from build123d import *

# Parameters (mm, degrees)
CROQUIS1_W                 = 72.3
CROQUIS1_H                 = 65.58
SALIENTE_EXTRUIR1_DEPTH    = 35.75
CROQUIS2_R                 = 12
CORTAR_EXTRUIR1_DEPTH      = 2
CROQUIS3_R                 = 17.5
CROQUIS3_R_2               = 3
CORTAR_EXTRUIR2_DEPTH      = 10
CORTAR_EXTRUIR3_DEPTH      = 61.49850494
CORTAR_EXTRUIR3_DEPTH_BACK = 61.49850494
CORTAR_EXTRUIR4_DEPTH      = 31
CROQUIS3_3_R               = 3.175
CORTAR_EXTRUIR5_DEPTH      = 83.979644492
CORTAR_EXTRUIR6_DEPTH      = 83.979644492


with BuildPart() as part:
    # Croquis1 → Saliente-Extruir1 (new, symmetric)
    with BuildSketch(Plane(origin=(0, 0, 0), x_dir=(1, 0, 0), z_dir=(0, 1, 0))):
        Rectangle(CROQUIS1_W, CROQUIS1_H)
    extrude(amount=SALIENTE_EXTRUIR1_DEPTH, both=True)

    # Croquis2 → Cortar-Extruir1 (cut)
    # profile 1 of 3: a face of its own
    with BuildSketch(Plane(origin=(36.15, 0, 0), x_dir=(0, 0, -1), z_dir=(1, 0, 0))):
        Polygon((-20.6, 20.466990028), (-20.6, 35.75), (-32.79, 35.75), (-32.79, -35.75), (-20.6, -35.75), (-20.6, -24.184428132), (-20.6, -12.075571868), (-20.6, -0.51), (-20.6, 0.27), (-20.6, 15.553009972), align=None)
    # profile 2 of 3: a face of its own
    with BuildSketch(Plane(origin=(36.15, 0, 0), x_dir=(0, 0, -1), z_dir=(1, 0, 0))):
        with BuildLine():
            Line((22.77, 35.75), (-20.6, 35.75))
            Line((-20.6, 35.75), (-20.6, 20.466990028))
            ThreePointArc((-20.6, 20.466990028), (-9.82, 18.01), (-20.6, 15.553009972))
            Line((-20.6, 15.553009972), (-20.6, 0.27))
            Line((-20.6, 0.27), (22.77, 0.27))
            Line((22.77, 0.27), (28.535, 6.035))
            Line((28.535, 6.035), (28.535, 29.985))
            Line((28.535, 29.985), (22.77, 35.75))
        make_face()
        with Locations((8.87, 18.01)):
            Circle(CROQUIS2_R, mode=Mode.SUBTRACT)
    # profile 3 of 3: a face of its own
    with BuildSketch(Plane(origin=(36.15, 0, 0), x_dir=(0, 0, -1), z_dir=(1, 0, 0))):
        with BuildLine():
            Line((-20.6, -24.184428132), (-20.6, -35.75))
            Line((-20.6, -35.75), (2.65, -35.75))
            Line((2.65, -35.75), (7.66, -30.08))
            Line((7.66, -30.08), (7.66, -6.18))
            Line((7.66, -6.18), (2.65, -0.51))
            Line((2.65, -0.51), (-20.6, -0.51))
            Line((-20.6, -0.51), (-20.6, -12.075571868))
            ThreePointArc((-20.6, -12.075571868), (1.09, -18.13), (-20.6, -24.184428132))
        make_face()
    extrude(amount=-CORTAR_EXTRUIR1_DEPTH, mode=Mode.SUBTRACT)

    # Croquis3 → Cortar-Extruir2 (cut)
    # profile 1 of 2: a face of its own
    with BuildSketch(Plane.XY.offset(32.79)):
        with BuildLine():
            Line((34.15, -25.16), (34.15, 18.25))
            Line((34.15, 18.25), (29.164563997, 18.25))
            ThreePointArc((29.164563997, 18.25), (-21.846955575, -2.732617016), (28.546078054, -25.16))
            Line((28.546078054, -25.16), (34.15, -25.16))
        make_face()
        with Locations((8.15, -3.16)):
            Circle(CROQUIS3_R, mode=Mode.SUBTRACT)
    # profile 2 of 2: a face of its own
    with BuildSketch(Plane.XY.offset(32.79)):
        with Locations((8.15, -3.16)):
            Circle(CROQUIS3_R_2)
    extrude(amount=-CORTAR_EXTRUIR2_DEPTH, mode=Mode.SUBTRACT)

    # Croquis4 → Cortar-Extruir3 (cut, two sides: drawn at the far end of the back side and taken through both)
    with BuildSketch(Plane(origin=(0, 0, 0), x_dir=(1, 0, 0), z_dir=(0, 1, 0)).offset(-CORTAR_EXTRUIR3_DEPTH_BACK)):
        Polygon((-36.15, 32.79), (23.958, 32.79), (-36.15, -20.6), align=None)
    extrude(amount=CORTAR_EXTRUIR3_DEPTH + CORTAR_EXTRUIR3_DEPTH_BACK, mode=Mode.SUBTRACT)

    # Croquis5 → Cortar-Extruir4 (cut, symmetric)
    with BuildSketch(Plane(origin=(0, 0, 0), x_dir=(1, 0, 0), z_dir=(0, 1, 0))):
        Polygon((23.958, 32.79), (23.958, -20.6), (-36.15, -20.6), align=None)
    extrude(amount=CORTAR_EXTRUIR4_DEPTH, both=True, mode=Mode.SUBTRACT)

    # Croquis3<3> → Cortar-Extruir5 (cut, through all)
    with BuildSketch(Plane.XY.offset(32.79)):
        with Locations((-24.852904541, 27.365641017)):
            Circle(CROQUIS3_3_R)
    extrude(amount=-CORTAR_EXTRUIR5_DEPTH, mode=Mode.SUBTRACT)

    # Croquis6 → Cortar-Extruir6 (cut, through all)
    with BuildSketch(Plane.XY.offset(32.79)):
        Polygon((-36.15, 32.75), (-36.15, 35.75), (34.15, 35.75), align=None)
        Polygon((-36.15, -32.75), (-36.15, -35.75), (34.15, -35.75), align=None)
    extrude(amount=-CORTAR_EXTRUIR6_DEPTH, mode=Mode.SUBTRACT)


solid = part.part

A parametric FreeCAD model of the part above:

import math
import FreeCAD as App
import Part
import Sketcher
from FreeCAD import Vector
Q = App.Units.Quantity

doc = App.newDocument("Part")
body = doc.addObject("PartDesign::Body", "Body")

# Sketch on XZ plane
sketch1 = body.newObject("Sketcher::SketchObject", "Sketch")
sketch1.AttachmentSupport = (doc.getObject("XZ_Plane"), [""])
sketch1.MapMode = "FlatFace"
sketch1.addGeometry([
    Part.LineSegment(Vector(-36, -33, 0), Vector(-36, 33, 0)),
    Part.LineSegment(Vector(-36, 33, 0), Vector(36, 33, 0)),
    Part.LineSegment(Vector(36, 33, 0), Vector(36, -33, 0)),
    Part.LineSegment(Vector(36, -33, 0), Vector(-36, -33, 0)),
], False)
sketch1.addConstraint([
    Sketcher.Constraint("Coincident", 0, 2, 1, 1),
    Sketcher.Constraint("Coincident", 1, 2, 2, 1),
    Sketcher.Constraint("Coincident", 2, 2, 3, 1),
    Sketcher.Constraint("Coincident", 3, 2, 0, 1),
    Sketcher.Constraint("Vertical", 0),
    Sketcher.Constraint("Horizontal", 1),
    Sketcher.Constraint("Vertical", 2),
    Sketcher.Constraint("Horizontal", 3),
    Sketcher.Constraint("Symmetric", 0, 2, 2, 2, -1, 1),
    Sketcher.Constraint("DistanceX", 1, 1, 1, 2, Q("72.3 mm")),
    Sketcher.Constraint("DistanceY", 0, 1, 0, 2, Q("65.58 mm")),
])
pad1 = body.newObject("PartDesign::Pad", "Pad")
pad1.Profile = sketch1
pad1.Length = 71.5
pad1.Midplane = True

# Sketch on YZ plane
sketch2 = body.newObject("Sketcher::SketchObject", "Sketch001")
sketch2.AttachmentSupport = (doc.getObject("YZ_Plane"), [""])
sketch2.MapMode = "FlatFace"
sketch2.AttachmentOffset = App.Placement(Vector(0, 0, 36.15), App.Rotation())
sketch2.addGeometry([
    Part.LineSegment(Vector(35.8, 32.8, 0), Vector(-35.8, 32.8, 0)),  # 0
    Part.LineSegment(Vector(-35.8, 32.8, 0), Vector(-35.8, -2.6, 0)),  # 1
    Part.LineSegment(Vector(-35.8, -2.6, 0), Vector(-30.1, -7.7, 0)),  # 2
    Part.LineSegment(Vector(-30.1, -7.7, 0), Vector(-6.2, -7.7, 0)),  # 3
    Part.LineSegment(Vector(-6.2, -7.7, 0), Vector(-0.5, -2.6, 0)),  # 4
    Part.LineSegment(Vector(-0.5, -2.6, 0), Vector(-0.5, 20.6, 0)),  # 5
    Part.LineSegment(Vector(-0.5, 20.6, 0), Vector(0.3, 20.6, 0)),  # 6
    Part.LineSegment(Vector(0.3, 20.6, 0), Vector(0.3, -22.8, 0)),  # 7
    Part.LineSegment(Vector(0.3, -22.8, 0), Vector(6, -28.5, 0)),  # 8
    Part.LineSegment(Vector(6, -28.5, 0), Vector(30, -28.5, 0)),  # 9
    Part.LineSegment(Vector(30, -28.5, 0), Vector(35.8, -22.8, 0)),  # 10
    Part.LineSegment(Vector(35.8, -22.8, 0), Vector(35.8, 32.8, 0)),  # 11
    Part.LineSegment(Vector(-24.2, 20.6, 0), Vector(-12.1, 20.6, 0)),  # 12
    Part.ArcOfCircle(Part.Circle(Vector(-18.1, 10.6, 0), Vector(0, 0, 1), 11.7), math.radians(121), math.radians(419)),  # 13
    Part.LineSegment(Vector(15.6, 20.6, 0), Vector(20.5, 20.6, 0)),  # 14
    Part.ArcOfCircle(Part.Circle(Vector(18, 15.5, 0), Vector(0, 0, 1), 5.7), math.radians(116), math.radians(424)),  # 15
    Part.Circle(Vector(18, -8.9, 0), Vector(0, 0, 1), 12),  # 16
], False)
sketch2.addConstraint([
    Sketcher.Constraint("Coincident", 0, 2, 1, 1),
    Sketcher.Constraint("Coincident", 1, 2, 2, 1),
    Sketcher.Constraint("Coincident", 2, 2, 3, 1),
    Sketcher.Constraint("Coincident", 3, 2, 4, 1),
    Sketcher.Constraint("Coincident", 4, 2, 5, 1),
    Sketcher.Constraint("Coincident", 5, 2, 6, 1),
    Sketcher.Constraint("Coincident", 6, 2, 7, 1),
    Sketcher.Constraint("Coincident", 7, 2, 8, 1),
    Sketcher.Constraint("Coincident", 8, 2, 9, 1),
    Sketcher.Constraint("Coincident", 9, 2, 10, 1),
    Sketcher.Constraint("Coincident", 10, 2, 11, 1),
    Sketcher.Constraint("Coincident", 11, 2, 0, 1),
    Sketcher.Constraint("Coincident", 12, 1, 13, 1),
    Sketcher.Constraint("Coincident", 13, 2, 12, 2),
    Sketcher.Constraint("Coincident", 14, 1, 15, 1),
    Sketcher.Constraint("Coincident", 15, 2, 14, 2),
    Sketcher.Constraint("Horizontal", 0),
    Sketcher.Constraint("Vertical", 1),
    Sketcher.Constraint("Horizontal", 3),
    Sketcher.Constraint("Vertical", 5),
    Sketcher.Constraint("Horizontal", 6),
    Sketcher.Constraint("Vertical", 7),
    Sketcher.Constraint("Horizontal", 9),
    Sketcher.Constraint("Vertical", 11),
    Sketcher.Constraint("Horizontal", 12),
    Sketcher.Constraint("Horizontal", 14),
    Sketcher.Constraint("Perpendicular", 8, 10),
    Sketcher.Constraint("Horizontal", 1, 2, 4, 2),
    Sketcher.Constraint("Horizontal", 7, 2, 10, 2),
    Sketcher.Constraint("Horizontal", 6, 2, 12, 1),
    Sketcher.Constraint("Horizontal", 13, 2, 14, 1),
    Sketcher.Constraint("Vertical", 15, 3, 16, 3),
    Sketcher.Constraint("Equal", 2, 4),
    Sketcher.Constraint("Equal", 8, 10),
    Sketcher.Constraint("Diameter", 16, Q("24 mm")),
    Sketcher.Constraint("Radius", 13, Q("11.69 mm")),
    Sketcher.Constraint("Radius", 15, Q("5.67 mm")),
    Sketcher.Constraint("DistanceX", 0, 2, 0, 1, Q("71.5 mm")),
    Sketcher.Constraint("DistanceX", 3, 1, 3, 2, Q("23.9 mm")),
    Sketcher.Constraint("DistanceY", 13, 3, 5, 2, Q("10 mm")),
    Sketcher.Constraint("DistanceX", 6, 1, 6, 2, Q("0.78 mm")),
    Sketcher.Constraint("DistanceX", 9, 1, 9, 2, Q("23.95 mm")),
    Sketcher.Constraint("DistanceY", 1, 2, 1, 1, Q("35.44 mm")),
    Sketcher.Constraint("DistanceY", 5, 1, 5, 2, Q("23.25 mm")),
    Sketcher.Constraint("DistanceY", 7, 2, 7, 1, Q("43.37 mm")),
    Sketcher.Constraint("DistanceY", -1, 1, 13, 3, Q("10.6 mm")),
    Sketcher.Constraint("DistanceY", 15, 3, 0, 2, Q("17.3 mm")),
    Sketcher.Constraint("DistanceX", 13, 3, 6, 2, Q("18.4 mm")),
    Sketcher.Constraint("DistanceY", 7, 2, 16, 3, Q("13.9 mm")),
    Sketcher.Constraint("DistanceX", 13, 3, -1, 1, Q("18.13 mm")),
    Sketcher.Constraint("DistanceX", -1, 1, 15, 3, Q("18.01 mm")),
    Sketcher.Constraint("DistanceX", 0, 2, -1, 1, Q("35.75 mm")),
    Sketcher.Constraint("DistanceY", 2, 2, -1, 1, Q("7.66 mm")),
])
pocket1 = body.newObject("PartDesign::Pocket", "Pocket")
pocket1.Profile = sketch2
pocket1.Length = 2

# Sketch on XY plane
sketch3 = body.newObject("Sketcher::SketchObject", "Sketch002")
sketch3.AttachmentSupport = (doc.getObject("XY_Plane"), [""])
sketch3.MapMode = "FlatFace"
sketch3.AttachmentOffset = App.Placement(Vector(0, 0, 32.79), App.Rotation())
sketch3.addGeometry([
    Part.LineSegment(Vector(34.1, -25.2, 0), Vector(34.1, 18.2, 0)),  # 0
    Part.LineSegment(Vector(34.1, 18.2, 0), Vector(29.2, 18.2, 0)),  # 1
    Part.ArcOfCircle(Part.Circle(Vector(8.2, -3.2, 0), Vector(0, 0, 1), 30), math.radians(46), math.radians(313)),  # 2
    Part.LineSegment(Vector(28.5, -25.2, 0), Vector(34.1, -25.2, 0)),  # 3
    Part.Circle(Vector(8.2, -3.2, 0), Vector(0, 0, 1), 17.5),  # 4
    Part.Circle(Vector(8.2, -3.2, 0), Vector(0, 0, 1), 3),  # 5
], False)
sketch3.addConstraint([
    Sketcher.Constraint("Coincident", 0, 2, 1, 1),
    Sketcher.Constraint("Coincident", 1, 2, 2, 1),
    Sketcher.Constraint("Coincident", 2, 2, 3, 1),
    Sketcher.Constraint("Coincident", 3, 2, 0, 1),
    Sketcher.Constraint("Vertical", 0),
    Sketcher.Constraint("Horizontal", 1),
    Sketcher.Constraint("Horizontal", 3),
    Sketcher.Constraint("Coincident", 4, 3, 2, 3),
    Sketcher.Constraint("Coincident", 5, 3, 2, 3),
    Sketcher.Constraint("Diameter", 4, Q("35 mm")),
    Sketcher.Constraint("Diameter", 5, Q("6 mm")),
    Sketcher.Constraint("Radius", 2, Q("30 mm")),
    Sketcher.Constraint("DistanceX", 2, 3, 0, 2, Q("26 mm")),
    Sketcher.Constraint("DistanceY", 2, 2, 2, 3, Q("22 mm")),
    Sketcher.Constraint("DistanceY", 0, 1, 0, 2, Q("43.41 mm")),
    Sketcher.Constraint("DistanceX", -1, 1, 2, 3, Q("8.15 mm")),
    Sketcher.Constraint("DistanceY", 2, 3, -1, 1, Q("3.16 mm")),
])
pocket2 = body.newObject("PartDesign::Pocket", "Pocket001")
pocket2.Profile = sketch3
pocket2.Length = 10

# Sketch on XZ plane
sketch4 = body.newObject("Sketcher::SketchObject", "Sketch003")
sketch4.AttachmentSupport = (doc.getObject("XZ_Plane"), [""])
sketch4.MapMode = "FlatFace"
sketch4.addGeometry([
    Part.LineSegment(Vector(24, -33, 0), Vector(-36, -33, 0)),
    Part.LineSegment(Vector(-36, -33, 0), Vector(-36, 21, 0)),
    Part.LineSegment(Vector(-36, 21, 0), Vector(24, -33, 0)),
], False)
sketch4.addConstraint([
    Sketcher.Constraint("Coincident", 0, 2, 1, 1),
    Sketcher.Constraint("Coincident", 1, 2, 2, 1),
    Sketcher.Constraint("Coincident", 2, 2, 0, 1),
    Sketcher.Constraint("Horizontal", 0),
    Sketcher.Constraint("Vertical", 1),
    Sketcher.Constraint("DistanceY", 1, 1, 1, 2, Q("53.39 mm")),
    Sketcher.Constraint("DistanceY", -1, 1, 1, 2, Q("20.6 mm")),
    Sketcher.Constraint("DistanceX", 0, 2, 0, 1, Q("60.108 mm")),
    Sketcher.Constraint("DistanceX", 0, 2, -1, 1, Q("36.15 mm")),
])
pocket3 = body.newObject("PartDesign::Pocket", "Pocket002")
pocket3.Profile = sketch4
pocket3.Type = "ThroughAll"
pocket3.Midplane = True

# Sketch on XZ plane
sketch5 = body.newObject("Sketcher::SketchObject", "Sketch004")
sketch5.AttachmentSupport = (doc.getObject("XZ_Plane"), [""])
sketch5.MapMode = "FlatFace"
sketch5.addGeometry([
    Part.LineSegment(Vector(24, 21, 0), Vector(24, -33, 0)),
    Part.LineSegment(Vector(24, -33, 0), Vector(-36, 21, 0)),
    Part.LineSegment(Vector(-36, 21, 0), Vector(24, 21, 0)),
], False)
sketch5.addConstraint([
    Sketcher.Constraint("Coincident", 0, 2, 1, 1),
    Sketcher.Constraint("Coincident", 1, 2, 2, 1),
    Sketcher.Constraint("Coincident", 2, 2, 0, 1),
    Sketcher.Constraint("Vertical", 0),
    Sketcher.Constraint("Horizontal", 2),
    Sketcher.Constraint("DistanceY", 0, 2, 0, 1, Q("53.39 mm")),
    Sketcher.Constraint("DistanceY", -1, 1, 1, 2, Q("20.6 mm")),
    Sketcher.Constraint("DistanceX", 2, 1, 2, 2, Q("60.108 mm")),
    Sketcher.Constraint("DistanceX", 1, 2, -1, 1, Q("36.15 mm")),
])
pocket4 = body.newObject("PartDesign::Pocket", "Pocket003")
pocket4.Profile = sketch5
pocket4.Length = 62
pocket4.Midplane = True

# Sketch on XY plane
sketch6 = body.newObject("Sketcher::SketchObject", "Sketch005")
sketch6.AttachmentSupport = (doc.getObject("XY_Plane"), [""])
sketch6.MapMode = "FlatFace"
sketch6.AttachmentOffset = App.Placement(Vector(0, 0, 32.79), App.Rotation())
sketch6.addGeometry(Part.Circle(Vector(-24.9, 27.4, 0), Vector(0, 0, 1), 3.2), False)
sketch6.addConstraint([
    Sketcher.Constraint("Diameter", 0, Q("6.35 mm")),
    Sketcher.Constraint("DistanceY", -1, 1, 0, 3, Q("27.365641 mm")),
    Sketcher.Constraint("DistanceX", 0, 3, -1, 1, Q("24.852905 mm")),
])
pocket5 = body.newObject("PartDesign::Pocket", "Pocket004")
pocket5.Profile = sketch6
pocket5.Type = "ThroughAll"

# Sketch on XY plane
sketch7 = body.newObject("Sketcher::SketchObject", "Sketch006")
sketch7.AttachmentSupport = (doc.getObject("XY_Plane"), [""])
sketch7.MapMode = "FlatFace"
sketch7.AttachmentOffset = App.Placement(Vector(0, 0, 32.79), App.Rotation())
sketch7.addGeometry([
    Part.LineSegment(Vector(-36.1, 35.8, 0), Vector(-36.1, 32.8, 0)),  # 0
    Part.LineSegment(Vector(-36.1, 32.8, 0), Vector(34.1, 35.8, 0)),  # 1
    Part.LineSegment(Vector(34.1, 35.8, 0), Vector(-36.1, 35.8, 0)),  # 2
    Part.LineSegment(Vector(-36.1, -32.8, 0), Vector(-36.1, -35.8, 0)),  # 3
    Part.LineSegment(Vector(-36.1, -35.8, 0), Vector(34.1, -35.8, 0)),  # 4
    Part.LineSegment(Vector(34.1, -35.8, 0), Vector(-36.1, -32.8, 0)),  # 5
], False)
sketch7.addConstraint([
    Sketcher.Constraint("Coincident", 0, 2, 1, 1),
    Sketcher.Constraint("Coincident", 1, 2, 2, 1),
    Sketcher.Constraint("Coincident", 2, 2, 0, 1),
    Sketcher.Constraint("Coincident", 3, 2, 4, 1),
    Sketcher.Constraint("Coincident", 4, 2, 5, 1),
    Sketcher.Constraint("Coincident", 5, 2, 3, 1),
    Sketcher.Constraint("Vertical", 0),
    Sketcher.Constraint("Horizontal", 2),
    Sketcher.Constraint("Vertical", 3),
    Sketcher.Constraint("Horizontal", 4),
    Sketcher.Constraint("Symmetric", 2, 2, 3, 2, -1),
    Sketcher.Constraint("Vertical", 1, 2, 4, 2),
    Sketcher.Constraint("Equal", 0, 3),
    Sketcher.Constraint("DistanceY", 0, 2, 0, 1, Q("3 mm")),
    Sketcher.Constraint("DistanceX", 2, 2, 2, 1, Q("70.3 mm")),
    Sketcher.Constraint("DistanceY", 3, 2, 0, 2, Q("68.5 mm")),
    Sketcher.Constraint("DistanceX", 0, 2, -1, 1, Q("36.15 mm")),
])
pocket6 = body.newObject("PartDesign::Pocket", "Pocket005")
pocket6.Profile = sketch7
pocket6.Type = "ThroughAll"

doc.recompute()
